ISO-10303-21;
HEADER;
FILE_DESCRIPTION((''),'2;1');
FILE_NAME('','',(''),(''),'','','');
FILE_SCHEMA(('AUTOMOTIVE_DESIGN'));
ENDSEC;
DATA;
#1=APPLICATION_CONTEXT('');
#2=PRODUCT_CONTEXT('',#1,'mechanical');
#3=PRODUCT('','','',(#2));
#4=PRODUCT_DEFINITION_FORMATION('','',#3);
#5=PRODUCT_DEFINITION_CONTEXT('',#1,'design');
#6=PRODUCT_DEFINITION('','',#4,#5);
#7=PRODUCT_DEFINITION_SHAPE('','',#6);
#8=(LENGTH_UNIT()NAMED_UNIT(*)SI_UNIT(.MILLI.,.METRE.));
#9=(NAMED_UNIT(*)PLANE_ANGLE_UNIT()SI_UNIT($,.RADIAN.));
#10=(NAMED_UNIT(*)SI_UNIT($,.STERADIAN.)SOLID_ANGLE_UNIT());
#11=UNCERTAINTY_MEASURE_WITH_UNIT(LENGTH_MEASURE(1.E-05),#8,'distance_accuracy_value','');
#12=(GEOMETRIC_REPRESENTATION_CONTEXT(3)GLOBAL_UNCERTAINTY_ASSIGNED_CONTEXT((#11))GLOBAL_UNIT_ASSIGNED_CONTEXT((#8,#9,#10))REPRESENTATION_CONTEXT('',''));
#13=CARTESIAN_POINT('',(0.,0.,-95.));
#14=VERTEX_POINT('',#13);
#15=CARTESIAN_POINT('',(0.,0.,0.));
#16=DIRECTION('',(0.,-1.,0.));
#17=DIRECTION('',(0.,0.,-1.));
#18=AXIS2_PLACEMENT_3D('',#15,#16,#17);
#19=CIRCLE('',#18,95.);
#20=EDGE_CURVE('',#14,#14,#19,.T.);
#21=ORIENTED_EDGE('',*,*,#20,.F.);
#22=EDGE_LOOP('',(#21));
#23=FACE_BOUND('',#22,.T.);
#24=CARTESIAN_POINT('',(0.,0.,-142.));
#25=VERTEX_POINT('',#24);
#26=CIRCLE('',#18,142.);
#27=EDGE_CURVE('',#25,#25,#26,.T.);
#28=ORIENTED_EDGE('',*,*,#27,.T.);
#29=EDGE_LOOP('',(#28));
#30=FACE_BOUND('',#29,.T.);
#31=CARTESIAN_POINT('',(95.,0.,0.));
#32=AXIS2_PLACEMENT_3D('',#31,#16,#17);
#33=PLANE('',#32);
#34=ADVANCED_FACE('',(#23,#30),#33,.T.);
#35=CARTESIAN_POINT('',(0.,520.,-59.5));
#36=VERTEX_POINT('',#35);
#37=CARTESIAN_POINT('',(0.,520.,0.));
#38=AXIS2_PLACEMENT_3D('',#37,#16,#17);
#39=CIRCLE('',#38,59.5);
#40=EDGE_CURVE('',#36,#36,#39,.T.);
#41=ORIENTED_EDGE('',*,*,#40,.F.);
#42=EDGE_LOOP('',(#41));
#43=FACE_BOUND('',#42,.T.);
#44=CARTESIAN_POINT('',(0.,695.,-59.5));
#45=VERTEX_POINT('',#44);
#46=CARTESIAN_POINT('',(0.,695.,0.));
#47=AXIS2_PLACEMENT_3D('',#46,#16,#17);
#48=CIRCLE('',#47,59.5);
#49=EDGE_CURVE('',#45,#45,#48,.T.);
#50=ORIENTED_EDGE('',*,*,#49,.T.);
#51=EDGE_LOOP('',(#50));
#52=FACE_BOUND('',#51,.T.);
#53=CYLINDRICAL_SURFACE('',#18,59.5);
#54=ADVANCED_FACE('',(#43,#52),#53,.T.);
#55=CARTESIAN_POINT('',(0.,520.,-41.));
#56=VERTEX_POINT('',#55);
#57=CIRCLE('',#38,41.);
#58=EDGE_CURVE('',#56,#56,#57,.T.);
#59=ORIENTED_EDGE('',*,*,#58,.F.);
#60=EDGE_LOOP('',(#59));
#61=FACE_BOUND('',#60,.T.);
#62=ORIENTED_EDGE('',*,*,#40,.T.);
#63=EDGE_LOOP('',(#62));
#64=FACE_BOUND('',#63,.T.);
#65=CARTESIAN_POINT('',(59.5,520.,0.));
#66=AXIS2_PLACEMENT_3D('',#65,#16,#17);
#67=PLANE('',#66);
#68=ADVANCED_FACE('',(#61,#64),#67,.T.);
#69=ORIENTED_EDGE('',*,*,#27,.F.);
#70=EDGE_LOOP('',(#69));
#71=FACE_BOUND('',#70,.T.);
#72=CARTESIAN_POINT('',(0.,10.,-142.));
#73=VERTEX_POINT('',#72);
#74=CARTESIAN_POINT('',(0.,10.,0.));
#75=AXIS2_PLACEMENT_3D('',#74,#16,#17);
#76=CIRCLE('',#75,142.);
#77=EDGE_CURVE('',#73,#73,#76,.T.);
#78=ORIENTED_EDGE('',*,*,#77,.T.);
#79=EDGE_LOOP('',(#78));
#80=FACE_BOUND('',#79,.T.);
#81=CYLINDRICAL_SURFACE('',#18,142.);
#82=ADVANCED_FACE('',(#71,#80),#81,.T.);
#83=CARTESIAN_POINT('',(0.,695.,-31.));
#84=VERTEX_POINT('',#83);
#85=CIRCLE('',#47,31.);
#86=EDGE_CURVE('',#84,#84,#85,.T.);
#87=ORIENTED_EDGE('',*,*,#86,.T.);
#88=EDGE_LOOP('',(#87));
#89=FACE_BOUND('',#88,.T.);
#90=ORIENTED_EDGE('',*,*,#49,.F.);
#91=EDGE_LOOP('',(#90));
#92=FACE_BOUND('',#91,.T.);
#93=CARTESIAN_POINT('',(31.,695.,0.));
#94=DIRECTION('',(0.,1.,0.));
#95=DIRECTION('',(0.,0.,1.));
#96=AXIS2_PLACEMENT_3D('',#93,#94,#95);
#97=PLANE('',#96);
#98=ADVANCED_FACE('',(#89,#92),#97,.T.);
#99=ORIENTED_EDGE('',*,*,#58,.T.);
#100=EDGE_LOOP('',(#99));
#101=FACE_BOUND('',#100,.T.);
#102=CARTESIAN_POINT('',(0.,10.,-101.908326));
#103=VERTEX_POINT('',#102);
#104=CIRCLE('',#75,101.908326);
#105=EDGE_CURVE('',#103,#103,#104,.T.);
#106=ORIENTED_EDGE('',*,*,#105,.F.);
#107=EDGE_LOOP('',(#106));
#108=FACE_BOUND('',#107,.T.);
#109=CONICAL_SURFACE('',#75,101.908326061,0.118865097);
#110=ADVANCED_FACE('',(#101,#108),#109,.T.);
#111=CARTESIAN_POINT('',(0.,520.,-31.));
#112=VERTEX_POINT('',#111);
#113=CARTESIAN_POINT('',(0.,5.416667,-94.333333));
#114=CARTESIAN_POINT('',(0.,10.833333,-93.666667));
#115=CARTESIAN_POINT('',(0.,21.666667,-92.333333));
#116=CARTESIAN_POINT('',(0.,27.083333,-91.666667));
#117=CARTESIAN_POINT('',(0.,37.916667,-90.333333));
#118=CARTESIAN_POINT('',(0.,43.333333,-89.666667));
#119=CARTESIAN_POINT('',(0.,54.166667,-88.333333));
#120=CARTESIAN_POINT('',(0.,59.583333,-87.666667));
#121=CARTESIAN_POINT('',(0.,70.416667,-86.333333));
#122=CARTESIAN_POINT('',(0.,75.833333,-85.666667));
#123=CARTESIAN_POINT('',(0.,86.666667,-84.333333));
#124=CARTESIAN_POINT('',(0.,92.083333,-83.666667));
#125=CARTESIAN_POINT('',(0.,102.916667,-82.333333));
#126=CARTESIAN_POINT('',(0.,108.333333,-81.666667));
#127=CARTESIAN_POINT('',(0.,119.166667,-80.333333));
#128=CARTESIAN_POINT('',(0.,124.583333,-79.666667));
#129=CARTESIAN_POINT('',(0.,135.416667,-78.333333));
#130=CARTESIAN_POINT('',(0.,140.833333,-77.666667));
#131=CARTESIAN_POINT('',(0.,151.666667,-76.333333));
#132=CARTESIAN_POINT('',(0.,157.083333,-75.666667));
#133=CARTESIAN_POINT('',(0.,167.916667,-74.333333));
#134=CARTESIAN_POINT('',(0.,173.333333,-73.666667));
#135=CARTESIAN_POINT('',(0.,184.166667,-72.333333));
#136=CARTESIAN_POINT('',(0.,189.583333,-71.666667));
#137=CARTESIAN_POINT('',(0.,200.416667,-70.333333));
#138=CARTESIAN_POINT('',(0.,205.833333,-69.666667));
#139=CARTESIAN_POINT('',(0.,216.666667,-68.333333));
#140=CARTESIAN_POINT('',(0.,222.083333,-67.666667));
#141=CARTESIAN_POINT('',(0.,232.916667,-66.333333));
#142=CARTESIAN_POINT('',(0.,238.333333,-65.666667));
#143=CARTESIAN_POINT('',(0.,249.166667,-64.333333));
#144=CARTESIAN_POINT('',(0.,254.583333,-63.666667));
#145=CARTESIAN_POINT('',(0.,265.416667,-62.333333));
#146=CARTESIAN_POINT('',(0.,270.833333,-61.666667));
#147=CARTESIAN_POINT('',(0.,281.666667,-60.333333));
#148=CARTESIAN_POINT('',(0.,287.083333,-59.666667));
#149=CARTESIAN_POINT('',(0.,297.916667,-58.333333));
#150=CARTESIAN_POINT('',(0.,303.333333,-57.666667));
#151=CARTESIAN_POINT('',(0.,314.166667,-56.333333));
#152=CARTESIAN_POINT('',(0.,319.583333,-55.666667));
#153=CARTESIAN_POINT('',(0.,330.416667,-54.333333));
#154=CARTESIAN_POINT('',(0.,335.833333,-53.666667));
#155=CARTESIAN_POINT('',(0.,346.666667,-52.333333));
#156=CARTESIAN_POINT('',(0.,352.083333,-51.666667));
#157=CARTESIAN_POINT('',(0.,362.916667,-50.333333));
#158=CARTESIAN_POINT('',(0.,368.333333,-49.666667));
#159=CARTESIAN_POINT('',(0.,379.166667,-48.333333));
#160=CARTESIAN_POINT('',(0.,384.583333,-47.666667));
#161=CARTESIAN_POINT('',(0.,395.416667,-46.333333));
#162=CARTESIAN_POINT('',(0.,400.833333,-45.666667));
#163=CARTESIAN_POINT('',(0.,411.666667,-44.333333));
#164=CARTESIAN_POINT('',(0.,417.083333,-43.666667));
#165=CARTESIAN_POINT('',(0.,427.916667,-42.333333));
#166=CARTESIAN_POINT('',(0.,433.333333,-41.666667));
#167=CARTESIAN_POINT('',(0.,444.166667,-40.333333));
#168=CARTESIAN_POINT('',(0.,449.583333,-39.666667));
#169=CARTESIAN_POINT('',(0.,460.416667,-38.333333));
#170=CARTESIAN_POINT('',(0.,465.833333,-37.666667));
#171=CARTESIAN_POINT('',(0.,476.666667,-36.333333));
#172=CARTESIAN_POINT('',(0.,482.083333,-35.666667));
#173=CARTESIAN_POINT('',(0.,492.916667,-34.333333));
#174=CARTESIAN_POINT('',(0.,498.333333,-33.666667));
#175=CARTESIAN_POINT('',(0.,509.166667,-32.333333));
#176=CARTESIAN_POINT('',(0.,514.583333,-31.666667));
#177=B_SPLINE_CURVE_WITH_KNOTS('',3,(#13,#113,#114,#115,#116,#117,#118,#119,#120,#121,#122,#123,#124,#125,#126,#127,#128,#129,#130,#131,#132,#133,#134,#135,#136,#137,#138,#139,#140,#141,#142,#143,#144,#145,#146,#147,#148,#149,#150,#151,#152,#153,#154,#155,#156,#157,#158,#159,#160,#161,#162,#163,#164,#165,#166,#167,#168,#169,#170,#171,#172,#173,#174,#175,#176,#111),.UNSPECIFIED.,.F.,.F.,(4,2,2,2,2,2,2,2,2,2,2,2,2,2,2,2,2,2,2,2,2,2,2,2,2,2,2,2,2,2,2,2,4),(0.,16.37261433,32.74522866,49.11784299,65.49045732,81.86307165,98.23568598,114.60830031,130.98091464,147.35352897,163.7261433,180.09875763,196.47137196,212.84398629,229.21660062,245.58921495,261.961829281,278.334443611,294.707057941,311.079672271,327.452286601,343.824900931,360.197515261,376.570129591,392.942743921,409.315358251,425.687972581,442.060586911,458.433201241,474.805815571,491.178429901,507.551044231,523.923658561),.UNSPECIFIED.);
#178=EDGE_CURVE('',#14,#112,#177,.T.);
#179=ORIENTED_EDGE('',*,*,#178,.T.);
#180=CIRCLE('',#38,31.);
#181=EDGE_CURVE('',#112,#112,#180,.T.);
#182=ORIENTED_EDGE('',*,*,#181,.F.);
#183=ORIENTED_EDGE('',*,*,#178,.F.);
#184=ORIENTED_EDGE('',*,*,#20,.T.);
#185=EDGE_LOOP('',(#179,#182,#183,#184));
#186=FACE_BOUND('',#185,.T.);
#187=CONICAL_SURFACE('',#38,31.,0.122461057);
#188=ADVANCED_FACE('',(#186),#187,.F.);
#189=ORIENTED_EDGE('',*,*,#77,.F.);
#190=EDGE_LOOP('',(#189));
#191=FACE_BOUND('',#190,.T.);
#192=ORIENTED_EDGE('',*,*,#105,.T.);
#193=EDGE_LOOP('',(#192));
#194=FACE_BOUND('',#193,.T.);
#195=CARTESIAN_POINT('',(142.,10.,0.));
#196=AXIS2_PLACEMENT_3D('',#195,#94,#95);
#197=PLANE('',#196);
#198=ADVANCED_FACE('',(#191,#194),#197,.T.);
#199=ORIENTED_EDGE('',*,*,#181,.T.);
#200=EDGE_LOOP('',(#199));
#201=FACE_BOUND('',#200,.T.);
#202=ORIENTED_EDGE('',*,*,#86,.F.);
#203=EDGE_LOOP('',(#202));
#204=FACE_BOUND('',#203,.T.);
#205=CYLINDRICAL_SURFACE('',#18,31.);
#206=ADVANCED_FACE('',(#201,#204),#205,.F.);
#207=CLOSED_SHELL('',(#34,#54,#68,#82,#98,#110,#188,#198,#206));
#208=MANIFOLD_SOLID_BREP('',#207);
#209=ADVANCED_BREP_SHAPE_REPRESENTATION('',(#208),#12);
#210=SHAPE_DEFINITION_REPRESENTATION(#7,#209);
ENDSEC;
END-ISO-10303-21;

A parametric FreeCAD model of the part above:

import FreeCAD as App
import Part
import Sketcher
from FreeCAD import Vector


def add_polygon(sketch, points):
    """Adds a closed chain of lines whose ends are joined by coincident constraints."""
    first, n = sketch.GeometryCount, len(points)
    for a, b in zip(points, points[1:] + points[:1]):
        sketch.addGeometry(Part.LineSegment(App.Vector(*a, 0), App.Vector(*b, 0)), False)
    for i in range(n):
        sketch.addConstraint(Sketcher.Constraint("Coincident", first + i, 2, first + (i + 1) % n, 1))

doc = App.newDocument("Part")
body = doc.addObject("PartDesign::Body", "Body")

# Sketch on XY plane
sketch1 = doc.addObject("Sketcher::SketchObject", "Sketch")
body.addObject(sketch1)
sketch1.AttachmentSupport = (doc.XY_Plane, [""])
sketch1.MapMode = "FlatFace"
add_polygon(sketch1, [(60, 695), (31, 695), (31, 520), (95, 0), (142, 0), (142, 10), (102, 10), (41, 520), (60, 520)])  # lines 0-8
sketch1.addConstraint(Sketcher.Constraint("Horizontal", 0))
sketch1.addConstraint(Sketcher.Constraint("Vertical", 1))
sketch1.addConstraint(Sketcher.Constraint("Horizontal", 3))
sketch1.addConstraint(Sketcher.Constraint("Vertical", 4))
sketch1.addConstraint(Sketcher.Constraint("Horizontal", 5))
sketch1.addConstraint(Sketcher.Constraint("Horizontal", 7))
sketch1.addConstraint(Sketcher.Constraint("Vertical", 8))
sketch1.addConstraint(Sketcher.Constraint("PointOnObject", 2, 2, -1))
sketch1.addConstraint(Sketcher.Constraint("Horizontal", 1, 2, 6, 2))
sketch1.addConstraint(Sketcher.Constraint("DistanceX", 3, 1, 3, 2, 47.0))
sketch1.addConstraint(Sketcher.Constraint("DistanceY", 1, 2, 1, 1, 175.0))
sketch1.addConstraint(Sketcher.Constraint("DistanceY", 4, 1, 4, 2, 10.0))
sketch1.addConstraint(Sketcher.Constraint("DistanceX", 0, 2, 0, 1, 28.5))
sketch1.addConstraint(Sketcher.Constraint("DistanceX", 7, 1, 7, 2, 18.5))
sketch1.addConstraint(Sketcher.Constraint("DistanceX", -1, 1, 0, 2, 31.0))
sketch1.addConstraint(Sketcher.Constraint("DistanceY", -1, 1, 0, 2, 695.0))
sketch1.addConstraint(Sketcher.Constraint("DistanceX", -1, 1, 2, 2, 95.0))
sketch1.addConstraint(Sketcher.Constraint("DistanceX", 5, 2, 5, 1, 40.091674))
revolution = doc.addObject("PartDesign::Revolution", "Revolution")
body.addObject(revolution)
revolution.Profile = sketch1
revolution.ReferenceAxis = (sketch1, ["V_Axis"])
revolution.Angle = 360

doc.recompute()
